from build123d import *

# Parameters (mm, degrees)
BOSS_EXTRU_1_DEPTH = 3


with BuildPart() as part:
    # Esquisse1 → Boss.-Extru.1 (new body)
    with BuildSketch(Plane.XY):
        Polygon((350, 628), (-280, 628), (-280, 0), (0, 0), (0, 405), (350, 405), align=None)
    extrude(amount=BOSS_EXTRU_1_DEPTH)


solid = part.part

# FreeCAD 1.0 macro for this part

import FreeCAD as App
import Part
import Sketcher

V = App.Vector

doc = App.newDocument("Part")
body = doc.addObject("PartDesign::Body", "Body")

sketch1 = body.newObject("Sketcher::SketchObject", "Sketch")
sketch1.AttachmentSupport = (doc.getObject("XY_Plane"), [""])
sketch1.MapMode = "FlatFace"
sketch1.addGeometry(Part.LineSegment(V(350, 628, 0), V(-280, 628, 0)), False)
sketch1.addGeometry(Part.LineSegment(V(-280, 628, 0), V(-280, 0, 0)), False)
sketch1.addGeometry(Part.LineSegment(V(-280, 0, 0), V(0, 0, 0)), False)
sketch1.addGeometry(Part.LineSegment(V(0, 0, 0), V(0, 405, 0)), False)
sketch1.addGeometry(Part.LineSegment(V(0, 405, 0), V(350, 405, 0)), False)
sketch1.addGeometry(Part.LineSegment(V(350, 405, 0), V(350, 628, 0)), False)
sketch1.addConstraint(Sketcher.Constraint("Coincident", 0, 2, 1, 1))
sketch1.addConstraint(Sketcher.Constraint("Coincident", 1, 2, 2, 1))
sketch1.addConstraint(Sketcher.Constraint("Coincident", 2, 2, 3, 1))
sketch1.addConstraint(Sketcher.Constraint("Coincident", 3, 2, 4, 1))
sketch1.addConstraint(Sketcher.Constraint("Coincident", 4, 2, 5, 1))
sketch1.addConstraint(Sketcher.Constraint("Coincident", 5, 2, 0, 1))
sketch1.addConstraint(Sketcher.Constraint("Horizontal", 0))
sketch1.addConstraint(Sketcher.Constraint("Vertical", 1))
sketch1.addConstraint(Sketcher.Constraint("Horizontal", 2))
sketch1.addConstraint(Sketcher.Constraint("Vertical", 3))
sketch1.addConstraint(Sketcher.Constraint("Horizontal", 4))
sketch1.addConstraint(Sketcher.Constraint("Vertical", 5))
sketch1.addConstraint(Sketcher.Constraint("Coincident", 2, 2, -1, 1))
sketch1.addConstraint(Sketcher.Constraint("DistanceX", 0, 2, 0, 1, 630.0))
sketch1.addConstraint(Sketcher.Constraint("DistanceX", 2, 1, 2, 2, 280.0))
sketch1.addConstraint(Sketcher.Constraint("DistanceY", 1, 2, 1, 1, 628.0))
sketch1.addConstraint(Sketcher.Constraint("DistanceY", 3, 1, 3, 2, 405.0))
pad1 = body.newObject("PartDesign::Pad", "Pad")
pad1.Profile = sketch1
pad1.Length = 3

doc.recompute()
